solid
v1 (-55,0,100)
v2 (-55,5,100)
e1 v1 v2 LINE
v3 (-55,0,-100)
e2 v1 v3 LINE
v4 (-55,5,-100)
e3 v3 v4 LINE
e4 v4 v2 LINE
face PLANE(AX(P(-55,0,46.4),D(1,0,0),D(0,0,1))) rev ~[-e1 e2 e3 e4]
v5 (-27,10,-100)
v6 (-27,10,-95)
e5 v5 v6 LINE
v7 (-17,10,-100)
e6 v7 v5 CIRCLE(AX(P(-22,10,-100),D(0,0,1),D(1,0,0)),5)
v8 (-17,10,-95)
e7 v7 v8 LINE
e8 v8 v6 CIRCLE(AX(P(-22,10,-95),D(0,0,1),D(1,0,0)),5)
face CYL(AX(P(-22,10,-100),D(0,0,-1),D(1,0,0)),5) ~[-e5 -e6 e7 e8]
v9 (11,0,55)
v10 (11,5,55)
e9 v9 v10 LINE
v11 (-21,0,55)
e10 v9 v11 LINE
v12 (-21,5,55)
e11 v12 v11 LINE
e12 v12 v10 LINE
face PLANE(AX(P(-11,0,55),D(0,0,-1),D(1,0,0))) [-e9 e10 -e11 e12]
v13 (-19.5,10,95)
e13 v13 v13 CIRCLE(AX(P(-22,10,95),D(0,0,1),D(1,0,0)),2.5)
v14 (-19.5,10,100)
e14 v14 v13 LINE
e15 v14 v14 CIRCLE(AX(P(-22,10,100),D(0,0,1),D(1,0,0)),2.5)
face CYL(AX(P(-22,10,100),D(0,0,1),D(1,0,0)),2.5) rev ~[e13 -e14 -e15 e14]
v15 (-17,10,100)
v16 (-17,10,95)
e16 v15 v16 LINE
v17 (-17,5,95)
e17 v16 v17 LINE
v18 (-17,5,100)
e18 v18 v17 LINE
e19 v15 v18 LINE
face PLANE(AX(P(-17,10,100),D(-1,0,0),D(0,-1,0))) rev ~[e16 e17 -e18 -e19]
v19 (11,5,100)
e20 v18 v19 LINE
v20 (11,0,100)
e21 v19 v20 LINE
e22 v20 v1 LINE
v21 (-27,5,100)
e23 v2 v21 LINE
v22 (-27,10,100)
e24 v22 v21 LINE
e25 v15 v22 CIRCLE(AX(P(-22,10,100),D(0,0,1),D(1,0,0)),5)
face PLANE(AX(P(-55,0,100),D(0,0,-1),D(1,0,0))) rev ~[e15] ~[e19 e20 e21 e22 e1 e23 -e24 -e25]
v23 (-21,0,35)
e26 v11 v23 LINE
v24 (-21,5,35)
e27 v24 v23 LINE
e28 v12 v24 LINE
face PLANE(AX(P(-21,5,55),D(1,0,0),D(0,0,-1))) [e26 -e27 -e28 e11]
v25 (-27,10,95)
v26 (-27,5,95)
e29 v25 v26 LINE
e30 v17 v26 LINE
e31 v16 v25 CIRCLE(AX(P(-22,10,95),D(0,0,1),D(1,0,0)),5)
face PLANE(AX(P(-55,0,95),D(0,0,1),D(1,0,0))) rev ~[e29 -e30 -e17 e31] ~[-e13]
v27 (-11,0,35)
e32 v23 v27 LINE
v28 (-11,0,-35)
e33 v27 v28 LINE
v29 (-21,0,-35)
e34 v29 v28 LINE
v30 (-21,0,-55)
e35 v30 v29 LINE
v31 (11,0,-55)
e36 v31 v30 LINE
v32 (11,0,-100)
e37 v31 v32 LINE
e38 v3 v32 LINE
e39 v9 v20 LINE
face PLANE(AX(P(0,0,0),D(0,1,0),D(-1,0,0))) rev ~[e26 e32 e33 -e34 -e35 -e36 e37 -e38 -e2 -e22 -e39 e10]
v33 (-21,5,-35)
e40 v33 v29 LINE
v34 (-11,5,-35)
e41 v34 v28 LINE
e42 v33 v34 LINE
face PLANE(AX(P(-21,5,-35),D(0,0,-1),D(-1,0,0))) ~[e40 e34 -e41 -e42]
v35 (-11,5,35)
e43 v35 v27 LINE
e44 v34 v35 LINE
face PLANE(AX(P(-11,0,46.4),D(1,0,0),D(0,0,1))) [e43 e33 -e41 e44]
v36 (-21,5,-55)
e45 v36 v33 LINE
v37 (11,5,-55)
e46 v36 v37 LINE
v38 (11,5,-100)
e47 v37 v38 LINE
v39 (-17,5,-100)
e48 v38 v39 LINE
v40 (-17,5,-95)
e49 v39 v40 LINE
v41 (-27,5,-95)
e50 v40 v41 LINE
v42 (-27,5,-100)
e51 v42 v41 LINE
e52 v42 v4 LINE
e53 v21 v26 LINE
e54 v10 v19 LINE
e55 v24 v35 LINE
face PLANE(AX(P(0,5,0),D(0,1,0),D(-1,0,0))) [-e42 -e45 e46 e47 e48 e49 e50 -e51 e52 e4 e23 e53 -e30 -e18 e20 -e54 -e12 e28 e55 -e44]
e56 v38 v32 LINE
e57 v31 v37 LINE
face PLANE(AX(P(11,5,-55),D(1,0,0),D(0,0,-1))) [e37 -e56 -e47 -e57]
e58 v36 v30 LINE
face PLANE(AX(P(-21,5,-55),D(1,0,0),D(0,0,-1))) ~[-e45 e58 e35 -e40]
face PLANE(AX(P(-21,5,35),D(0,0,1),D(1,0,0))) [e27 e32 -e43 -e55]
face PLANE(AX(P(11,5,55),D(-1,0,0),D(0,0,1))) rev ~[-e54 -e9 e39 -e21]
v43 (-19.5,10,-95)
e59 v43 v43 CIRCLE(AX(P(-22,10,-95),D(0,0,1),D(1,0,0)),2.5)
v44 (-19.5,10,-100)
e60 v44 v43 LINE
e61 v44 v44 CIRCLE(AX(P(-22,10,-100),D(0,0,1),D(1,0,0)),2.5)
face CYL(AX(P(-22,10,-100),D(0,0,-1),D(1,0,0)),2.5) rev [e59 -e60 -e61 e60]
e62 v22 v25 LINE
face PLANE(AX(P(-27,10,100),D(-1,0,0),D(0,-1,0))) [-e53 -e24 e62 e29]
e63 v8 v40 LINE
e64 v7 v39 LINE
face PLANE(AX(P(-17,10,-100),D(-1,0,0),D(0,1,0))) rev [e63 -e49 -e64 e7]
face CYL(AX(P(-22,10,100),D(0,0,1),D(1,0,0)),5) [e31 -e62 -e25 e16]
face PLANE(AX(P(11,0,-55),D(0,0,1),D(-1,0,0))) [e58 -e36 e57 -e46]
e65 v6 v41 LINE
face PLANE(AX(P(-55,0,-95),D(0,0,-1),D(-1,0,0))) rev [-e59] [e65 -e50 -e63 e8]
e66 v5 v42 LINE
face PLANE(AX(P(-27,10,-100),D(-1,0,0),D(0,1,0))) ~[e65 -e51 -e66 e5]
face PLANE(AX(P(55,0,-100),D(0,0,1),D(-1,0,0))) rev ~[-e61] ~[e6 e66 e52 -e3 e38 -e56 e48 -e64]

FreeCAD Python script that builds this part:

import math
import FreeCAD as App
import Part
import Sketcher


def add_polygon(sketch, points):
    """Adds a closed chain of lines whose ends are joined by coincident constraints."""
    first, n = sketch.GeometryCount, len(points)
    for a, b in zip(points, points[1:] + points[:1]):
        sketch.addGeometry(Part.LineSegment(App.Vector(*a, 0), App.Vector(*b, 0)), False)
    for i in range(n):
        sketch.addConstraint(Sketcher.Constraint("Coincident", first + i, 2, first + (i + 1) % n, 1))

doc = App.newDocument("Part")
body = doc.addObject("PartDesign::Body", "Body")

# Sketch on XZ plane
sketch1 = body.newObject("Sketcher::SketchObject", "Sketch")
sketch1.AttachmentSupport = (doc.getObject("XZ_Plane"), [""])
sketch1.MapMode = "FlatFace"
add_polygon(sketch1, [(-55, 100), (55, 100), (55, -100), (-55, -100)])  # lines 0-3
add_polygon(sketch1, [(-11, 55), (-11, -55), (11, -55), (11, 55)])  # lines 4-7
sketch1.addConstraint([
    Sketcher.Constraint("Horizontal", 0),
    Sketcher.Constraint("Vertical", 1),
    Sketcher.Constraint("Horizontal", 2),
    Sketcher.Constraint("Vertical", 3),
    Sketcher.Constraint("Vertical", 4),
    Sketcher.Constraint("Horizontal", 5),
    Sketcher.Constraint("Vertical", 6),
    Sketcher.Constraint("Horizontal", 7),
    Sketcher.Constraint("Symmetric", 0, 2, 2, 2, -1, 1),
    Sketcher.Constraint("Symmetric", 4, 2, 6, 2, -1, 1),
    Sketcher.Constraint("Equal", 2, 4),
    Sketcher.Constraint("DistanceX", 0, 1, 0, 2, 110.0),
    Sketcher.Constraint("DistanceX", 5, 1, 5, 2, 22.0),
    Sketcher.Constraint("DistanceY", 1, 2, 1, 1, 200.0),
])
pad1 = body.newObject("PartDesign::Pad", "Pad")
pad1.Profile = sketch1
pad1.Length = 5
pad1.Reversed = True

# Sketch on XZ plane
sketch2 = body.newObject("Sketcher::SketchObject", "Sketch001")
sketch2.AttachmentSupport = (doc.getObject("XZ_Plane"), [""])
sketch2.MapMode = "FlatFace"
sketch2.AttachmentOffset = App.Placement(App.Vector(0, 0, -5), App.Rotation())
add_polygon(sketch2, [(11, -100), (11, 100), (55, 100), (55, -100)])  # lines 0-3
sketch2.addConstraint([
    Sketcher.Constraint("Vertical", 0),
    Sketcher.Constraint("Horizontal", 1),
    Sketcher.Constraint("Vertical", 2),
    Sketcher.Constraint("Horizontal", 3),
    Sketcher.Constraint("DistanceX", 1, 1, 1, 2, 44.0),
    Sketcher.Constraint("DistanceY", 0, 1, 0, 2, 200.0),
    Sketcher.Constraint("DistanceX", -1, 1, 0, 2, 11.0),
    Sketcher.Constraint("DistanceY", -1, 1, 0, 2, 100.0),
])
pocket1 = body.newObject("PartDesign::Pocket", "Pocket")
pocket1.Profile = sketch2
pocket1.Type = "ThroughAll"
pocket1.Reversed = True

# Sketch on XZ plane
sketch3 = body.newObject("Sketcher::SketchObject", "Sketch002")
sketch3.AttachmentSupport = (doc.getObject("XZ_Plane"), [""])
sketch3.MapMode = "FlatFace"
sketch3.AttachmentOffset = App.Placement(App.Vector(0, 0, -5), App.Rotation())
add_polygon(sketch3, [(-21, 55), (-11, 55), (-11, 35), (-21, 35)])  # lines 0-3
sketch3.addConstraint([
    Sketcher.Constraint("Horizontal", 0),
    Sketcher.Constraint("Vertical", 1),
    Sketcher.Constraint("Horizontal", 2),
    Sketcher.Constraint("Vertical", 3),
    Sketcher.Constraint("DistanceX", 0, 1, 0, 2, 10.0),
    Sketcher.Constraint("DistanceY", 1, 2, 1, 1, 20.0),
    Sketcher.Constraint("DistanceX", 0, 2, -1, 1, 11.0),
    Sketcher.Constraint("DistanceY", -1, 1, 0, 2, 55.0),
])
pocket2 = body.newObject("PartDesign::Pocket", "Pocket001")
pocket2.Profile = sketch3
pocket2.Type = "ThroughAll"
pocket2.Reversed = True
doc.recompute()

mirrored = body.newObject("PartDesign::Mirrored", "Mirrored")
mirrored.Originals = [pocket2]
mirrored.MirrorPlane = (doc.getObject("XY_Plane"), [""])
body.Tip = mirrored

# Sketch on XY plane
sketch4 = body.newObject("Sketcher::SketchObject", "Sketch003")
sketch4.AttachmentSupport = (doc.getObject("XY_Plane"), [""])
sketch4.MapMode = "FlatFace"
sketch4.AttachmentOffset = App.Placement(App.Vector(0, 0, 100), App.Rotation())
sketch4.addGeometry([
    Part.ArcOfCircle(Part.Circle(App.Vector(-22, 10, 0), App.Vector(0, 0, 1), 5), math.radians(0), math.radians(180)),  # 0
    Part.LineSegment(App.Vector(-27, 10, 0), App.Vector(-27, 5, 0)),  # 1
    Part.LineSegment(App.Vector(-27, 5, 0), App.Vector(-17, 5, 0)),  # 2
    Part.LineSegment(App.Vector(-17, 5, 0), App.Vector(-17, 10, 0)),  # 3
    Part.Circle(App.Vector(-22, 10, 0), App.Vector(0, 0, 1), 2.5),  # 4
], False)
sketch4.addConstraint([
    Sketcher.Constraint("Tangent", 0, 2, 1, 1),
    Sketcher.Constraint("Coincident", 1, 2, 2, 1),
    Sketcher.Constraint("Coincident", 2, 2, 3, 1),
    Sketcher.Constraint("Tangent", 3, 2, 0, 1),
    Sketcher.Constraint("Vertical", 1),
    Sketcher.Constraint("Horizontal", 2),
    Sketcher.Constraint("Vertical", 3),
    Sketcher.Constraint("Coincident", 4, 3, 0, 3),
    Sketcher.Constraint("Diameter", 4, 5.0),
    Sketcher.Constraint("Radius", 0, 5.0),
    Sketcher.Constraint("DistanceY", 1, 2, 1, 1, 5.0),
    Sketcher.Constraint("DistanceY", -1, 1, 0, 3, 10.0),
    Sketcher.Constraint("DistanceX", 0, 3, -1, 1, 22.0),
])
pad2 = body.newObject("PartDesign::Pad", "Pad001")
pad2.Profile = sketch4
pad2.Length = 5
pad2.Reversed = True
doc.recompute()

mirrored2 = body.newObject("PartDesign::Mirrored", "Mirrored001")
mirrored2.Originals = [pad2]
mirrored2.MirrorPlane = (doc.getObject("XY_Plane"), [""])
body.Tip = mirrored2

doc.recompute()
